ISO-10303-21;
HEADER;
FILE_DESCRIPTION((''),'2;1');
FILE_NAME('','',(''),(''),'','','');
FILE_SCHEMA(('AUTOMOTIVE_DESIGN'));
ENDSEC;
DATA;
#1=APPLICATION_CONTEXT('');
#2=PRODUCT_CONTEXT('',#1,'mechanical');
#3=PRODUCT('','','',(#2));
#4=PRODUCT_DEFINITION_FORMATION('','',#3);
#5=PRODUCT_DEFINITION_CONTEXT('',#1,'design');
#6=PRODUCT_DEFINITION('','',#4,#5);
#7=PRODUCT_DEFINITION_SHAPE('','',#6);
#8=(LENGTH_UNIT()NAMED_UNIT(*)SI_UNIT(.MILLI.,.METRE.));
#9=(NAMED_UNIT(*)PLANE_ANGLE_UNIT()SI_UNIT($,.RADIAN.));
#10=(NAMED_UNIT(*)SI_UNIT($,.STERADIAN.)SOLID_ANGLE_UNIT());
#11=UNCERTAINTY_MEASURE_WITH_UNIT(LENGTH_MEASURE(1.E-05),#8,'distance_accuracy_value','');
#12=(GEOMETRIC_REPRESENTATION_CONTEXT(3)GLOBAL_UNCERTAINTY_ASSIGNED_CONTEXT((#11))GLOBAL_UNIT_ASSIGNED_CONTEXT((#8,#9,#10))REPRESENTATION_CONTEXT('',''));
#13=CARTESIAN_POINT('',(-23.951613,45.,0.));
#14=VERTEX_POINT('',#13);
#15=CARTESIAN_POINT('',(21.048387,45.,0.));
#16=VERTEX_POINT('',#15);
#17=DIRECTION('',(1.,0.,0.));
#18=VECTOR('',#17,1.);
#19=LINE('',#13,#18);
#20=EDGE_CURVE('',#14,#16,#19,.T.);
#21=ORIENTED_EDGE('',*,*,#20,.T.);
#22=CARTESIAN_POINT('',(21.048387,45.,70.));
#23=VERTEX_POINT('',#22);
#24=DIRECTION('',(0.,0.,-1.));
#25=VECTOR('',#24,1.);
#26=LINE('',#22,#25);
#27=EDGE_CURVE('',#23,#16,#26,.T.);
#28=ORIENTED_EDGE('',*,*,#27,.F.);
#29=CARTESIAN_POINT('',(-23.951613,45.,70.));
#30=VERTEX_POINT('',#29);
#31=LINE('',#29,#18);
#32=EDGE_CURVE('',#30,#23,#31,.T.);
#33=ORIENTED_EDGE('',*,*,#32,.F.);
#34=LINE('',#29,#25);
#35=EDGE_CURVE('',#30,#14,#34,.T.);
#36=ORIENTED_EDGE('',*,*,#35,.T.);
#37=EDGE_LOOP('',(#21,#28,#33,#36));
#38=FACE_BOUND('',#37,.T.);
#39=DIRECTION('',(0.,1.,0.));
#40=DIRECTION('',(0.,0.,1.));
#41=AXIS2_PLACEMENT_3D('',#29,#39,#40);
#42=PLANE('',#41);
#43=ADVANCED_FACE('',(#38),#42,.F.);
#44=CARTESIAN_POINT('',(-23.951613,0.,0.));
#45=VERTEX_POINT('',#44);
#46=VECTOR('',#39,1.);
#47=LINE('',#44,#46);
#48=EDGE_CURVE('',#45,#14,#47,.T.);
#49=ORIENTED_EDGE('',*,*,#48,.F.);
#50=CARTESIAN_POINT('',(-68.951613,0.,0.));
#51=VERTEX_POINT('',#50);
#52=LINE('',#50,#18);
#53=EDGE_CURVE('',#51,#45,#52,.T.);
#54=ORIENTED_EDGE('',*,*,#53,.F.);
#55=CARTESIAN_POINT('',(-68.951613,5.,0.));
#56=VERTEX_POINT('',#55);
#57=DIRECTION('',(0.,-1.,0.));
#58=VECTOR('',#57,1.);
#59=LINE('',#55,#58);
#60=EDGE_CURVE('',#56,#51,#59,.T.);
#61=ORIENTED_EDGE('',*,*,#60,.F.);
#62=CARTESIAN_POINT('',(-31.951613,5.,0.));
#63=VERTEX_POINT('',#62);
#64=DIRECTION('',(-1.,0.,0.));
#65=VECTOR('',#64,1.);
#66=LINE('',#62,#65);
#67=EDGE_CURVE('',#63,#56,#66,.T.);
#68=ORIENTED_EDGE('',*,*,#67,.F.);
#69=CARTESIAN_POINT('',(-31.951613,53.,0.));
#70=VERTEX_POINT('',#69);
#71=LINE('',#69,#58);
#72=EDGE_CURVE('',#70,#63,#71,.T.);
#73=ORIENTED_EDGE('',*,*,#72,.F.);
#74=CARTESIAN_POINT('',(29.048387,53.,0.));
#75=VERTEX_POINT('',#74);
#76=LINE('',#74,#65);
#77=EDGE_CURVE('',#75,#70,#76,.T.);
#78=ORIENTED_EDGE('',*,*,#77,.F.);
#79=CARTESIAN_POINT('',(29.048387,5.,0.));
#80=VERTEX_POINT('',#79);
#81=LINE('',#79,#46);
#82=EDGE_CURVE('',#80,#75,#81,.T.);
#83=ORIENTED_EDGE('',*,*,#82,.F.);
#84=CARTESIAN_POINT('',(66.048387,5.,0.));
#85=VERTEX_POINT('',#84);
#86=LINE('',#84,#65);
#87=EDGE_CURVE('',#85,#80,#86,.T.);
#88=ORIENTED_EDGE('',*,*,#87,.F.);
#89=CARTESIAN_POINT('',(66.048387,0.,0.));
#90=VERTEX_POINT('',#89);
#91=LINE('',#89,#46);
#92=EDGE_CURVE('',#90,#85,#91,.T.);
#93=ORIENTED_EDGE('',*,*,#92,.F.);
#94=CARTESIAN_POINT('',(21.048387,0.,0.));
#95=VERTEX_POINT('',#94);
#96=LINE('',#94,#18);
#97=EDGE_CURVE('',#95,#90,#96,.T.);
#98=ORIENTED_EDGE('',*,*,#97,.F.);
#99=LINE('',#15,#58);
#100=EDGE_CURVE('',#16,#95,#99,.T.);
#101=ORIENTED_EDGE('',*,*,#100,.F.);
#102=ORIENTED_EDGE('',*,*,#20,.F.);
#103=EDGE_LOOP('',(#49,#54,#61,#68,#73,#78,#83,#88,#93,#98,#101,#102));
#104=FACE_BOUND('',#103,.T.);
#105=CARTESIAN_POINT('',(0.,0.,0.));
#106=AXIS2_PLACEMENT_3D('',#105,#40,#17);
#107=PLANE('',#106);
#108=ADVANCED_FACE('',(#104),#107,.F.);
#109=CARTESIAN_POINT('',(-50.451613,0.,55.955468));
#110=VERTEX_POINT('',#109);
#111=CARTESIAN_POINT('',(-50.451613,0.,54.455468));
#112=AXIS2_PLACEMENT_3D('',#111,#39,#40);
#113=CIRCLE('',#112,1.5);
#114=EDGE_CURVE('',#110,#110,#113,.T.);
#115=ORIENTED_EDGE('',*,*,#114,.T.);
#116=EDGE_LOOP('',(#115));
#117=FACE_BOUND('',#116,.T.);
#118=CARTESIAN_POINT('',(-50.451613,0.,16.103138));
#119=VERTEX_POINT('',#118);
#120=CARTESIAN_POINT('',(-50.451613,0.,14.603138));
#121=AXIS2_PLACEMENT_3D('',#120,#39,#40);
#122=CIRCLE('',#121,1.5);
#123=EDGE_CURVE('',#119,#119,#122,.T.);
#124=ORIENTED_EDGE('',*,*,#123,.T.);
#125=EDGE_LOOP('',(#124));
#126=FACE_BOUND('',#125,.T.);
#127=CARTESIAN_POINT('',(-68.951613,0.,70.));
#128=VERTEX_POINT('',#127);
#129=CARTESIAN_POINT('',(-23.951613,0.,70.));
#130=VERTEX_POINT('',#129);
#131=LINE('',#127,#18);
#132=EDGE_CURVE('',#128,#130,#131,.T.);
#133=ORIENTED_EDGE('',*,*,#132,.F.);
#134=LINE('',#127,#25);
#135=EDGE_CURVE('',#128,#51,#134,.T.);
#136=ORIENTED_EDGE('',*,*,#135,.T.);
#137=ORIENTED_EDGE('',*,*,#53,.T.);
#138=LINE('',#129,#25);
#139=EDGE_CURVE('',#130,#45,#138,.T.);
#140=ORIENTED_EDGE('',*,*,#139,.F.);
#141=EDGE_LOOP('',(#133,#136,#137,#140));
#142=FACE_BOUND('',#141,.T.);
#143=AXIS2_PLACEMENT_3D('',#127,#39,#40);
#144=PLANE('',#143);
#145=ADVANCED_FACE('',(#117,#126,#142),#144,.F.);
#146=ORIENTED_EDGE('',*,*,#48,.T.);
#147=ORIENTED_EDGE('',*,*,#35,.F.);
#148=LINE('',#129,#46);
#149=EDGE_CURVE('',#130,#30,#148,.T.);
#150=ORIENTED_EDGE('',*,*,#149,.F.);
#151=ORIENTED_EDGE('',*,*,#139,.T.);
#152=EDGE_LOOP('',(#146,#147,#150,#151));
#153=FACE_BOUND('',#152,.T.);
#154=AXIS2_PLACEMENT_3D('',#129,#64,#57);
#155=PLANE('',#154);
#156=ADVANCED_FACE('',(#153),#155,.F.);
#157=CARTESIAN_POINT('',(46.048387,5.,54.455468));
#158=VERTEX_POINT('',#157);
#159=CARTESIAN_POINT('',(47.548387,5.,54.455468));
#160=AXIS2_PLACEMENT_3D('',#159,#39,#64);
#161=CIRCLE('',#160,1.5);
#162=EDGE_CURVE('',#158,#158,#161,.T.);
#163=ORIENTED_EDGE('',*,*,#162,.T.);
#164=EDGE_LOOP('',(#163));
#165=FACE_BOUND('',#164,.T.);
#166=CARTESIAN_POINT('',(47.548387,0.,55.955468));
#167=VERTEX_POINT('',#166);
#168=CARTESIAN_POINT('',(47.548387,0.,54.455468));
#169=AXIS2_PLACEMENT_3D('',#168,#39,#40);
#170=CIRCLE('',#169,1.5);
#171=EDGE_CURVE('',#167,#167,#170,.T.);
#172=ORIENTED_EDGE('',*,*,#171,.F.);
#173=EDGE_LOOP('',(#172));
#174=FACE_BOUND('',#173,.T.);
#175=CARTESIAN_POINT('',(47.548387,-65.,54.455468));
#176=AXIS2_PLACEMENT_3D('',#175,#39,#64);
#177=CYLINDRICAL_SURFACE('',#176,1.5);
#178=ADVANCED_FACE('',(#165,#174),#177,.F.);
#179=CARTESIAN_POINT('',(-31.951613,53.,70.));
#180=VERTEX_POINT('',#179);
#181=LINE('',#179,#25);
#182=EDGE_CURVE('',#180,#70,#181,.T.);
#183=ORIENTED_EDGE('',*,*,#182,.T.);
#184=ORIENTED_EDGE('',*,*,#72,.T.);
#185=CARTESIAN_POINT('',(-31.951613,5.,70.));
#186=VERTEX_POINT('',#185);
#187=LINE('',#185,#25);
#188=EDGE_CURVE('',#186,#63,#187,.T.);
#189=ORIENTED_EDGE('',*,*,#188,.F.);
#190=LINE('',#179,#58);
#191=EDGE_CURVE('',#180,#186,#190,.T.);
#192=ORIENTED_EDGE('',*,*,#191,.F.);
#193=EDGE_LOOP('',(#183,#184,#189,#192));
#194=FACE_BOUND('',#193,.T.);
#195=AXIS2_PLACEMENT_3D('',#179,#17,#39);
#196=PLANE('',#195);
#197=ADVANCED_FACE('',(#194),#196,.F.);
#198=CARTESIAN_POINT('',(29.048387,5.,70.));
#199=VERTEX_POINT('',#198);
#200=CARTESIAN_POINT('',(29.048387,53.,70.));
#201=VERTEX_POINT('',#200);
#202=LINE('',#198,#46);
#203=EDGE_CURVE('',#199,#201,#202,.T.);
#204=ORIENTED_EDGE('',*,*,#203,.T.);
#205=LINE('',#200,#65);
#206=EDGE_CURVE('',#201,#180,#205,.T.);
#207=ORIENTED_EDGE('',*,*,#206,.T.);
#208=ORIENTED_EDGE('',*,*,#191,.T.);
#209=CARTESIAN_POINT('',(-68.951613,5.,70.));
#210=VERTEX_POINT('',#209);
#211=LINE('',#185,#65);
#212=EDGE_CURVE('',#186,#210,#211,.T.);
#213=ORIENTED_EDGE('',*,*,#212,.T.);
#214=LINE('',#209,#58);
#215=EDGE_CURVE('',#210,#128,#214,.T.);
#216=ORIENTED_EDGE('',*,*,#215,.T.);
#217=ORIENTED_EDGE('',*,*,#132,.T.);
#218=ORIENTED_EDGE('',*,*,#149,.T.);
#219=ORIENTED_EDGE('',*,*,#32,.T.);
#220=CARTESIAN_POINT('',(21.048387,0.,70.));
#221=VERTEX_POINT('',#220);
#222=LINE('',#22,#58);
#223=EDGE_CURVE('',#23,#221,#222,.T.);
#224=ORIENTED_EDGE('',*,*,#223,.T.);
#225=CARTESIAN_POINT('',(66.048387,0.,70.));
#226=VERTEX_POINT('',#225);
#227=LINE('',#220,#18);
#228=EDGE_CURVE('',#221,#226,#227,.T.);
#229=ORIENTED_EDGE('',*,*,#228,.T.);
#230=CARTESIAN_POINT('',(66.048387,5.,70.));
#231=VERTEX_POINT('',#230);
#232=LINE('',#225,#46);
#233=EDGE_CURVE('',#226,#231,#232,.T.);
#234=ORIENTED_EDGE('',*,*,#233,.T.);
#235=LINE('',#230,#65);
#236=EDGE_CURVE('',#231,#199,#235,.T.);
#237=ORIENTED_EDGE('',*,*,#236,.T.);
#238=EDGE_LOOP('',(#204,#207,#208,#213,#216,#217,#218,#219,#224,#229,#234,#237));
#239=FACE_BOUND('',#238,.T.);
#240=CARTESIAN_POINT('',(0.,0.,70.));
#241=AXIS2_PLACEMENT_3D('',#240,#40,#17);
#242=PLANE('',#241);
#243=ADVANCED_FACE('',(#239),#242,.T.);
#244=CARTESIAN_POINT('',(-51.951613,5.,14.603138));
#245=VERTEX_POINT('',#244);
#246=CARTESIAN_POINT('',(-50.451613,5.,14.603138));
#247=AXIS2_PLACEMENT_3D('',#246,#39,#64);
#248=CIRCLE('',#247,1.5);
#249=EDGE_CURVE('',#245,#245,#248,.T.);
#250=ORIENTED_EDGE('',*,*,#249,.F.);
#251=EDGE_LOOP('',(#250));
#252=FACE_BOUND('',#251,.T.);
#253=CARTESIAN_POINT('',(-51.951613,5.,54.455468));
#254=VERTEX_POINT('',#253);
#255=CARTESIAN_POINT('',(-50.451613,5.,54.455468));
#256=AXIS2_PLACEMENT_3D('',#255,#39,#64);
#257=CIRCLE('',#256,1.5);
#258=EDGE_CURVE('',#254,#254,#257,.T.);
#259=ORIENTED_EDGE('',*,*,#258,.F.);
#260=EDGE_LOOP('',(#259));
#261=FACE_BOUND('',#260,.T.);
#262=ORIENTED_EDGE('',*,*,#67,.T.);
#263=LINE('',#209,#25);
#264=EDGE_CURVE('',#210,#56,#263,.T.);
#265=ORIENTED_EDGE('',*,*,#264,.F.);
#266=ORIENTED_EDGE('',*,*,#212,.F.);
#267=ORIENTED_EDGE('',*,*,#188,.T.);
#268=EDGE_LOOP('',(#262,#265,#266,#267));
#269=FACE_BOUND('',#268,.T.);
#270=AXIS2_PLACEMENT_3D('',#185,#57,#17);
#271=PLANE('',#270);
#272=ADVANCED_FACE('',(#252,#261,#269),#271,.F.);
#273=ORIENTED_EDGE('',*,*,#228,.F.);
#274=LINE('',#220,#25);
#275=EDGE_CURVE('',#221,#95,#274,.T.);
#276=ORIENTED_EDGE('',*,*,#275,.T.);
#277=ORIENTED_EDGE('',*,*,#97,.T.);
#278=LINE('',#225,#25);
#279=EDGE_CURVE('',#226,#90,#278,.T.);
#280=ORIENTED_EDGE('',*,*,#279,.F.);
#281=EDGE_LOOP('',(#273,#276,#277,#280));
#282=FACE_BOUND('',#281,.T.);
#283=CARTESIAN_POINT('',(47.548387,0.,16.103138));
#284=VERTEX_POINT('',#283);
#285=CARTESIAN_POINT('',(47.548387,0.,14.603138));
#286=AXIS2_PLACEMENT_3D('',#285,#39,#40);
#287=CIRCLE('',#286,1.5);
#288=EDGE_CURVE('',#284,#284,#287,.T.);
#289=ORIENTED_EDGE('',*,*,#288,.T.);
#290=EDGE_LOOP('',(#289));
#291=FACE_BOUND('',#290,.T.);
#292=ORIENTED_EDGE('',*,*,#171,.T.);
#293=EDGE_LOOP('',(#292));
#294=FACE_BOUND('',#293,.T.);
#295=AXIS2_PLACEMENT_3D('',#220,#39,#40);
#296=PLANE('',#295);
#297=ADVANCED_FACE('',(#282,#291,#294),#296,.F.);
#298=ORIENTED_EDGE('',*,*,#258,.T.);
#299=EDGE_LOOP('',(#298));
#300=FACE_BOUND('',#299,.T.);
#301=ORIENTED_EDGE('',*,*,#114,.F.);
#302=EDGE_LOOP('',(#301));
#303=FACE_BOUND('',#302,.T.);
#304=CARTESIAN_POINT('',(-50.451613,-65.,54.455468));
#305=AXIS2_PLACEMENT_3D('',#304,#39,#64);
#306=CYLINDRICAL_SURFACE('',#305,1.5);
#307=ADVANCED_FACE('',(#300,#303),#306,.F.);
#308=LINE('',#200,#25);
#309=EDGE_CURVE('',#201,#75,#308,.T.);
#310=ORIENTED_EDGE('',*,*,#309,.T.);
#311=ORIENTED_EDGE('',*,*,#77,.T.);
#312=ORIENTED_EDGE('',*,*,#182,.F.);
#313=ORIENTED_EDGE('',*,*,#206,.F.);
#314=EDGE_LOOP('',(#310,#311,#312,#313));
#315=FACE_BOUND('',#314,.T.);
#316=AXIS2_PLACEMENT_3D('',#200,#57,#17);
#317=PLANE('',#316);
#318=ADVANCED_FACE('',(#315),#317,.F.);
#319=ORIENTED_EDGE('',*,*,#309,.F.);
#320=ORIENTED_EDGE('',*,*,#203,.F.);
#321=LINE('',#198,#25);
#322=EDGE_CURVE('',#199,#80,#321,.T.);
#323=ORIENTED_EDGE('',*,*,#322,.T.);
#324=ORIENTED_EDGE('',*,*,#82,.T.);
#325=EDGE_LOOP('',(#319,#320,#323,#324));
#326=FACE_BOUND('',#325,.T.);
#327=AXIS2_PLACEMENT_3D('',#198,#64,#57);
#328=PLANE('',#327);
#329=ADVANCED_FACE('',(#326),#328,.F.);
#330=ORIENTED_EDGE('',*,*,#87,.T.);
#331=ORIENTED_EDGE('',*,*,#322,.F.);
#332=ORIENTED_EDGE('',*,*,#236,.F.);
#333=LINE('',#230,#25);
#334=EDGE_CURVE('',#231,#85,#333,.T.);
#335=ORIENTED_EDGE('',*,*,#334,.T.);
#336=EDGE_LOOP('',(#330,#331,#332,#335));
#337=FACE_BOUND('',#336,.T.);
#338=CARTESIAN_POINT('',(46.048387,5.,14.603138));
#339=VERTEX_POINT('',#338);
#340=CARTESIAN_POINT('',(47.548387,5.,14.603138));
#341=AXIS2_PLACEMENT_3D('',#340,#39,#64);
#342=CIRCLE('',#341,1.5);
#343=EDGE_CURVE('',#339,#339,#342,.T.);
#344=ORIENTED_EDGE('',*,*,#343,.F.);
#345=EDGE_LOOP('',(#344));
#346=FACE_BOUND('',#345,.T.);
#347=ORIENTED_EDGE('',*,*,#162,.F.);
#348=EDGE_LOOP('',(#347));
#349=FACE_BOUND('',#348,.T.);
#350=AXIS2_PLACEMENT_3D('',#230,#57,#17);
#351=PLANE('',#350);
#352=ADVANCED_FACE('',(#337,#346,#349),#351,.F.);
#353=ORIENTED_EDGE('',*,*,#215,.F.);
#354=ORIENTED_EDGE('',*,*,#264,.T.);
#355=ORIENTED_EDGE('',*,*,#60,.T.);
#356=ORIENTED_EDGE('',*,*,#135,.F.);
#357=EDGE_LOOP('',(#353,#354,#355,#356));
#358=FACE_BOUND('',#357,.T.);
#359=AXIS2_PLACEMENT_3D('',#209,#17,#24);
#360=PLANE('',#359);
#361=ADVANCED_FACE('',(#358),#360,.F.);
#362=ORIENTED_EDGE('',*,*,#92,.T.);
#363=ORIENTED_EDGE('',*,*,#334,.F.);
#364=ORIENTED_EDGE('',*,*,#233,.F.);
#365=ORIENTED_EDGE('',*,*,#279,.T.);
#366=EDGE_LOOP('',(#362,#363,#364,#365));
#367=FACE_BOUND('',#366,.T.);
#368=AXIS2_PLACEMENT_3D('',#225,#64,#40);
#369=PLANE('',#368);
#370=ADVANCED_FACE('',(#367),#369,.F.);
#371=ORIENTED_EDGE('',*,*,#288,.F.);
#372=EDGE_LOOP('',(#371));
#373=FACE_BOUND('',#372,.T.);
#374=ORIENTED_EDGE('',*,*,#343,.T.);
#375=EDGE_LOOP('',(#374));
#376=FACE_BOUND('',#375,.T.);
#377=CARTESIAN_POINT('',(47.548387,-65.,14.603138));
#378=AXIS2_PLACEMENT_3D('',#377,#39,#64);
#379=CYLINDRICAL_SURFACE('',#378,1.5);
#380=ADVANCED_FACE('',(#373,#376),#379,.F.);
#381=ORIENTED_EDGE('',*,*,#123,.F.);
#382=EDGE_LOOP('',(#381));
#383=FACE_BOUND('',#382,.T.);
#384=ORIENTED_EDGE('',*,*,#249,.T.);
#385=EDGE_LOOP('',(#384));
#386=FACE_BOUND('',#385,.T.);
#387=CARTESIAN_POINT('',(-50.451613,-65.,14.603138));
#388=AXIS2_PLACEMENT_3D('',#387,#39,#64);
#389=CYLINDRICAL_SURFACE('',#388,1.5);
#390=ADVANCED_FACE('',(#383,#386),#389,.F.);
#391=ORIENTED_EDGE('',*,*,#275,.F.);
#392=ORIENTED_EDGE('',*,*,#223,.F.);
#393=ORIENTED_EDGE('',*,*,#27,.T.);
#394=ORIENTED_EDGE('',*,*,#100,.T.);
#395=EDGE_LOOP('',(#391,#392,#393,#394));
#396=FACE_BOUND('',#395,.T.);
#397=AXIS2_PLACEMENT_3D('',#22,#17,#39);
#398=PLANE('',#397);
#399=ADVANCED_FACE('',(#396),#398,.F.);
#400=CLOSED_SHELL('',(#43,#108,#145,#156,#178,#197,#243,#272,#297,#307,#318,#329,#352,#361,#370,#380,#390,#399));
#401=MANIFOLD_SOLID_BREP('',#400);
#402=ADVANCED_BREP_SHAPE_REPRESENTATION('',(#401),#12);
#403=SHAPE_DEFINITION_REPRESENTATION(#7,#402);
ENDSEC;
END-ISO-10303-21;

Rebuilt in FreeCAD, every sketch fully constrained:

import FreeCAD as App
import Part
import Sketcher

V = App.Vector
Q = App.Units.Quantity


def add_polygon(sketch, points):
    """Adds a closed chain of lines whose ends are joined by coincident constraints."""
    first, n = sketch.GeometryCount, len(points)
    for a, b in zip(points, points[1:] + points[:1]):
        sketch.addGeometry(Part.LineSegment(App.Vector(*a, 0), App.Vector(*b, 0)), False)
    for i in range(n):
        sketch.addConstraint(Sketcher.Constraint("Coincident", first + i, 2, first + (i + 1) % n, 1))

doc = App.newDocument("Part")
body = doc.addObject("PartDesign::Body", "Body")

# Sketch on XY plane
sketch1 = doc.addObject("Sketcher::SketchObject", "Sketch")
body.addObject(sketch1)
sketch1.AttachmentSupport = (doc.XY_Plane, [""])
sketch1.MapMode = "FlatFace"
add_polygon(sketch1, [(-69, 0), (-24, 0), (-24, 45), (21, 45), (21, 0), (66, 0), (66, 5), (29, 5), (29, 53), (-32, 53), (-32, 5), (-69, 5)])  # lines 0-11
sketch1.addConstraint([
    Sketcher.Constraint("Horizontal", 0),
    Sketcher.Constraint("Vertical", 1),
    Sketcher.Constraint("Horizontal", 2),
    Sketcher.Constraint("Vertical", 3),
    Sketcher.Constraint("Horizontal", 4),
    Sketcher.Constraint("Vertical", 5),
    Sketcher.Constraint("Horizontal", 6),
    Sketcher.Constraint("Vertical", 7),
    Sketcher.Constraint("Horizontal", 8),
    Sketcher.Constraint("Vertical", 9),
    Sketcher.Constraint("Horizontal", 10),
    Sketcher.Constraint("Vertical", 11),
    Sketcher.Constraint("PointOnObject", 0, 2, -1),
    Sketcher.Constraint("PointOnObject", 3, 2, -1),
    Sketcher.Constraint("Horizontal", 6, 2, 9, 2),
    Sketcher.Constraint("Equal", 0, 2),
    Sketcher.Constraint("Equal", 2, 4),
    Sketcher.Constraint("Equal", 6, 10),
    Sketcher.Constraint("Equal", 4, 1),
    Sketcher.Constraint("DistanceX", 0, 1, 0, 2, Q("45 mm")),
    Sketcher.Constraint("DistanceX", 6, 2, 6, 1, Q("37 mm")),
    Sketcher.Constraint("DistanceY", 5, 1, 5, 2, Q("5 mm")),
    Sketcher.Constraint("DistanceY", 7, 1, 7, 2, Q("48 mm")),
    Sketcher.Constraint("DistanceX", 0, 2, -1, 1, Q("23.951613 mm")),
])
pad1 = doc.addObject("PartDesign::Pad", "Pad")
body.addObject(pad1)
pad1.Profile = sketch1
pad1.Length = 70

# Sketch on XZ plane
sketch2 = doc.addObject("Sketcher::SketchObject", "Sketch001")
body.addObject(sketch2)
sketch2.AttachmentSupport = (doc.XZ_Plane, [""])
sketch2.MapMode = "FlatFace"
sketch2.AttachmentOffset = App.Placement(V(0, 0, -5), App.Rotation())
sketch2.addGeometry([
    Part.Circle(V(-50.5, 14.6, 0), V(0, 0, 1), 1.5),
    Part.Circle(V(-50.5, 54.5, 0), V(0, 0, 1), 1.5),
    Part.Circle(V(47.5, 14.6, 0), V(0, 0, 1), 1.5),
    Part.Circle(V(47.5, 54.5, 0), V(0, 0, 1), 1.5),
], False)
sketch2.addConstraint([
    Sketcher.Constraint("Equal", 0, 1),
    Sketcher.Constraint("Equal", 1, 2),
    Sketcher.Constraint("Equal", 2, 3),
    Sketcher.Constraint("Horizontal", 0, 3, 2, 3),
    Sketcher.Constraint("Horizontal", 1, 3, 3, 3),
    Sketcher.Constraint("Vertical", 0, 3, 1, 3),
    Sketcher.Constraint("Vertical", 2, 3, 3, 3),
    Sketcher.Constraint("Diameter", 0, Q("3 mm")),
    Sketcher.Constraint("DistanceX", 0, 3, 2, 3, Q("98 mm")),
    Sketcher.Constraint("DistanceY", -1, 1, 1, 3, Q("54.455468 mm")),
    Sketcher.Constraint("DistanceY", 0, 3, 1, 3, Q("39.85233 mm")),
    Sketcher.Constraint("DistanceX", 0, 3, -1, 1, Q("50.451613 mm")),
])
pocket1 = doc.addObject("PartDesign::Pocket", "Pocket")
body.addObject(pocket1)
pocket1.Profile = sketch2
pocket1.Length = 70
pocket1.Reversed = True

doc.recompute()
